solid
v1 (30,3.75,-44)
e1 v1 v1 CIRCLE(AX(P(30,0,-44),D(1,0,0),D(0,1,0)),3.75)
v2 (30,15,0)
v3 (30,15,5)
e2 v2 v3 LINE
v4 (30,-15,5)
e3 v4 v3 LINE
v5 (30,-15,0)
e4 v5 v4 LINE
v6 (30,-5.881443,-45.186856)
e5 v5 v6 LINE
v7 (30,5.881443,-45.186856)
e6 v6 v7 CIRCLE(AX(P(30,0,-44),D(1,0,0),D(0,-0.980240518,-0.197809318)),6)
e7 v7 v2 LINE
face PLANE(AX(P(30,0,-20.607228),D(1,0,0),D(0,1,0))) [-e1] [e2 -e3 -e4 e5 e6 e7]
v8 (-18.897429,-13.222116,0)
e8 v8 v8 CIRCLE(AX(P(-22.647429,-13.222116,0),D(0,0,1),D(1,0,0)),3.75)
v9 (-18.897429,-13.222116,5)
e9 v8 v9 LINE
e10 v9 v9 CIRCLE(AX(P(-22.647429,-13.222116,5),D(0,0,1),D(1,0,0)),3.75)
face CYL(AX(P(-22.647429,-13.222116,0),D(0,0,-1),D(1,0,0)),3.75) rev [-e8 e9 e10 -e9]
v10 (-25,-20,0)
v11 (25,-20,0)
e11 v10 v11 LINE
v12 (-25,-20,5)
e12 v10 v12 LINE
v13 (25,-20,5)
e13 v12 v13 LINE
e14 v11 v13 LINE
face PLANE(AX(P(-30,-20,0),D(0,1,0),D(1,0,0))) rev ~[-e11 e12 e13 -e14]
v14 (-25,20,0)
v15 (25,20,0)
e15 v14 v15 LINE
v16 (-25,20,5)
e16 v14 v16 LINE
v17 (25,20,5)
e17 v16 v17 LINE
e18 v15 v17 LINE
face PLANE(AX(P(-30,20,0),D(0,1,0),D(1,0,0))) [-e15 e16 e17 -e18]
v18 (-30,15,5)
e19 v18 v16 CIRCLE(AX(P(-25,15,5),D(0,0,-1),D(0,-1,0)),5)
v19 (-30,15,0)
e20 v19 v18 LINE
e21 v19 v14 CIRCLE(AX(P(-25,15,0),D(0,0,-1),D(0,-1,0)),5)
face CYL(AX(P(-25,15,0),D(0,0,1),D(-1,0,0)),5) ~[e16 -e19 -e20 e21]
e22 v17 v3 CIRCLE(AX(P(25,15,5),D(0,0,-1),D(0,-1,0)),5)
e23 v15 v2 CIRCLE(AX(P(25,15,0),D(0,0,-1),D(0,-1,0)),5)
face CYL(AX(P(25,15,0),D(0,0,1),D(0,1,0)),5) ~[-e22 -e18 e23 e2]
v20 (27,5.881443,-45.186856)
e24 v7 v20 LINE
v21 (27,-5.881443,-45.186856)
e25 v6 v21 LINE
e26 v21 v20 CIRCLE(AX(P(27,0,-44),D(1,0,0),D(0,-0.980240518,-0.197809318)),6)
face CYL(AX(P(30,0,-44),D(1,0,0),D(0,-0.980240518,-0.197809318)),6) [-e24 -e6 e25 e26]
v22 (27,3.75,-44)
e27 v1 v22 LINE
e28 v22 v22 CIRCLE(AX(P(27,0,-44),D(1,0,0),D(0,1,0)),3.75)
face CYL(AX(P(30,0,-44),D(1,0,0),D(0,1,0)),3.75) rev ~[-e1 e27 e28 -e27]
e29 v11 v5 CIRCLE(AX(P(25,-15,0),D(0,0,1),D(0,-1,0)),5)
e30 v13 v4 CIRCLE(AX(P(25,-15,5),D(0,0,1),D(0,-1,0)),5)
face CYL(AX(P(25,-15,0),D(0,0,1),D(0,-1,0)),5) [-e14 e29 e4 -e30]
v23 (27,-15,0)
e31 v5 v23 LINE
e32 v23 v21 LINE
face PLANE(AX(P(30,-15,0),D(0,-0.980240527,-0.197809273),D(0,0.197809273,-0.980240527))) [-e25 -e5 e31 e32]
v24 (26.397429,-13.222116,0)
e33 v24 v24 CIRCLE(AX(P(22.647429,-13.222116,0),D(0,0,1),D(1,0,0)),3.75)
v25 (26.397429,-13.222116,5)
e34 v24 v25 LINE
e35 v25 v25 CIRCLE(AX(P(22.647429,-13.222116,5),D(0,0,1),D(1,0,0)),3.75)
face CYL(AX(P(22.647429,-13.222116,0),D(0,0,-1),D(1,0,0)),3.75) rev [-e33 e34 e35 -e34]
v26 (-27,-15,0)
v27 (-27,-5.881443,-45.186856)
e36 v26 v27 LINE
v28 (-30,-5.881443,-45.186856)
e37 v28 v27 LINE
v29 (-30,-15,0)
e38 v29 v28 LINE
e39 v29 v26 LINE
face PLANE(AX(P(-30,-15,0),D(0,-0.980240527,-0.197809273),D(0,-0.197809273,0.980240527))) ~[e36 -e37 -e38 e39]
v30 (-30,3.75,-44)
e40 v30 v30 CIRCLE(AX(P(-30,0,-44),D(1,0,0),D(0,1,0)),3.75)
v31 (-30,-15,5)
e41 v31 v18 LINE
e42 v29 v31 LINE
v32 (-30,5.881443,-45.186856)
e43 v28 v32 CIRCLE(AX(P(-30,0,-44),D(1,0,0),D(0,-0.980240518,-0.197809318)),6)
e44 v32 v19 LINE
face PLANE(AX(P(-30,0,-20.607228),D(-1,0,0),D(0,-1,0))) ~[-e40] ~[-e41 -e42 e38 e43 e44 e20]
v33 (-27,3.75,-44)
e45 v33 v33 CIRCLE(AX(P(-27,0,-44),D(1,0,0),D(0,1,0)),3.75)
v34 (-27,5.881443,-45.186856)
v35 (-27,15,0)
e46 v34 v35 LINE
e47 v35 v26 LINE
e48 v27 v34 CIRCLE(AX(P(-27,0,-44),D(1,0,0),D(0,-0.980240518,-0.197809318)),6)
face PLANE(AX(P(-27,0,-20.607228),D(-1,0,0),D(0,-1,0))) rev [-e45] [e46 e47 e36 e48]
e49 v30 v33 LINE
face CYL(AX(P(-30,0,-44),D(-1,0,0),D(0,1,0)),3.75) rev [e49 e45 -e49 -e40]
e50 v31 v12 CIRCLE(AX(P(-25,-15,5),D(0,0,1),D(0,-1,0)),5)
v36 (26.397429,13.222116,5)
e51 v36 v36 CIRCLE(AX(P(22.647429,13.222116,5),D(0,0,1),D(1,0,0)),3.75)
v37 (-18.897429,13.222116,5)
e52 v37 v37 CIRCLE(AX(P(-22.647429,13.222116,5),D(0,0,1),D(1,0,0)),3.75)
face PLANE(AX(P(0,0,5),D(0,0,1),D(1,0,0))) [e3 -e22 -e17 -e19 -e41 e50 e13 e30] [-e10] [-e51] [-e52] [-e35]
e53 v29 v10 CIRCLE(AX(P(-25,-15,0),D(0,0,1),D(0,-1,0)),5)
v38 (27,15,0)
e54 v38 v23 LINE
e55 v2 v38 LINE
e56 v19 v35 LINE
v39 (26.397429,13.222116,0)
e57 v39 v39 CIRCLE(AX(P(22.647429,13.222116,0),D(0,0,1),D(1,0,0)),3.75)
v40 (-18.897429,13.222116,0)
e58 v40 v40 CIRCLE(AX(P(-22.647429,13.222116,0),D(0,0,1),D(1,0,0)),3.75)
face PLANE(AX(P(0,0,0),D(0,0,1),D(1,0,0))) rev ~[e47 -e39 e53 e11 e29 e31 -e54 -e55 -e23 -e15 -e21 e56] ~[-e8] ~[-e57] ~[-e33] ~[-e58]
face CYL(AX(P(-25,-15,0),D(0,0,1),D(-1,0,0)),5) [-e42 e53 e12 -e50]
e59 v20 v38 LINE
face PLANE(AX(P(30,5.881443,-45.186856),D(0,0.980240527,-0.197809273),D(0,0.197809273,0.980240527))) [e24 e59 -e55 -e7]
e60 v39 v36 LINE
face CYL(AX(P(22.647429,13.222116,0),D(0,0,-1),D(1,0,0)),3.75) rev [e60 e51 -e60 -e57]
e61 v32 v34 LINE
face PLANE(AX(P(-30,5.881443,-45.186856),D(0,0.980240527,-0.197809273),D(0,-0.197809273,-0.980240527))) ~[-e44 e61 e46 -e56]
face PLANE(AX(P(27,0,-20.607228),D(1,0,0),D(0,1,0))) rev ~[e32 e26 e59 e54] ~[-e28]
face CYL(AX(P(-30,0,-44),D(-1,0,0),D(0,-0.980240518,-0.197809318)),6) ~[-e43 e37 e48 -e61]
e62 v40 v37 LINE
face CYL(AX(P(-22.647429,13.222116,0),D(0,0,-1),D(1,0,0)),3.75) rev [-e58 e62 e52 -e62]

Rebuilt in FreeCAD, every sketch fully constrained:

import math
import FreeCAD as App
import Part
import Sketcher
Q = App.Units.Quantity


def edges_at(feature, points):
    """Names of the edges that pass closest to the given points."""
    edges = feature.Shape.Edges
    near = lambda p: min(range(len(edges)), key=lambda i: edges[i].distToShape(Part.Vertex(*p))[0])
    return sorted({f"Edge{near(p) + 1}" for p in points})


def add_polygon(sketch, points):
    """Adds a closed chain of lines whose ends are joined by coincident constraints."""
    first, n = sketch.GeometryCount, len(points)
    for a, b in zip(points, points[1:] + points[:1]):
        sketch.addGeometry(Part.LineSegment(App.Vector(*a, 0), App.Vector(*b, 0)), False)
    for i in range(n):
        sketch.addConstraint(Sketcher.Constraint("Coincident", first + i, 2, first + (i + 1) % n, 1))

doc = App.newDocument("Part")
body = doc.addObject("PartDesign::Body", "Body")

# Sketch on XY plane
sketch1 = doc.addObject("Sketcher::SketchObject", "Sketch")
body.addObject(sketch1)
sketch1.AttachmentSupport = (doc.XY_Plane, [""])
sketch1.MapMode = "FlatFace"
add_polygon(sketch1, [(-30, 20), (-30, -20), (30, -20), (30, 20)])  # lines 0-3
sketch1.addGeometry(Part.Circle(App.Vector(-22.6, -13.2, 0), App.Vector(0, 0, 1), 3.8), False)  # 4
sketch1.addGeometry(Part.Circle(App.Vector(22.6, -13.2, 0), App.Vector(0, 0, 1), 3.8), False)  # 5
sketch1.addGeometry(Part.Circle(App.Vector(-22.6, 13.2, 0), App.Vector(0, 0, 1), 3.8), False)  # 6
sketch1.addGeometry(Part.Circle(App.Vector(22.6, 13.2, 0), App.Vector(0, 0, 1), 3.8), False)  # 7
sketch1.addConstraint([
    Sketcher.Constraint("Vertical", 0),
    Sketcher.Constraint("Horizontal", 1),
    Sketcher.Constraint("Vertical", 2),
    Sketcher.Constraint("Horizontal", 3),
    Sketcher.Constraint("Equal", 4, 5),
    Sketcher.Constraint("Equal", 5, 6),
    Sketcher.Constraint("Equal", 6, 7),
    Sketcher.Constraint("Symmetric", 5, 3, 6, 3, -1, 1),
    Sketcher.Constraint("Symmetric", 4, 3, 7, 3, -1, 1),
    Sketcher.Constraint("Symmetric", 0, 2, 2, 2, -1, 1),
    Sketcher.Constraint("Symmetric", 4, 3, 5, 3, -2),
    Sketcher.Constraint("Diameter", 4, Q("7.5 mm")),
    Sketcher.Constraint("DistanceX", 1, 1, 1, 2, Q("60 mm")),
    Sketcher.Constraint("DistanceY", 0, 2, 0, 1, Q("40 mm")),
    Sketcher.Constraint("DistanceX", 4, 3, -1, 1, Q("22.647429 mm")),
    Sketcher.Constraint("DistanceY", 4, 3, 6, 3, Q("26.444232 mm")),
])
pad1 = doc.addObject("PartDesign::Pad", "Pad")
body.addObject(pad1)
pad1.Profile = sketch1
pad1.Length = 5
doc.recompute()

fillet = doc.addObject("PartDesign::Fillet", "Fillet")
body.addObject(fillet)
fillet.Base = (pad1, edges_at(pad1, [
    (-30, -20, 2.5),
    (30, -20, 2.5),
    (30, 20, 2.5),
    (-30, 20, 2.5),
]))
fillet.Radius = 5

# Sketch on YZ plane
sketch2 = doc.addObject("Sketcher::SketchObject", "Sketch001")
body.addObject(sketch2)
sketch2.AttachmentSupport = (doc.YZ_Plane, [""])
sketch2.MapMode = "FlatFace"
sketch2.AttachmentOffset = App.Placement(App.Vector(0, 0, 30), App.Rotation())
sketch2.addGeometry([
    Part.LineSegment(App.Vector(15, 0, 0), App.Vector(-15, 0, 0)),  # 0
    Part.LineSegment(App.Vector(-15, 0, 0), App.Vector(-5.9, -45.2, 0)),  # 1
    Part.ArcOfCircle(Part.Circle(App.Vector(0, -44, 0), App.Vector(0, 0, 1), 6), math.radians(-169), math.radians(-11)),  # 2
    Part.LineSegment(App.Vector(5.9, -45.2, 0), App.Vector(15, 0, 0)),  # 3
    Part.Circle(App.Vector(0, -44, 0), App.Vector(0, 0, 1), 3.8),  # 4
], False)
sketch2.addConstraint([
    Sketcher.Constraint("Coincident", 0, 2, 1, 1),
    Sketcher.Constraint("Tangent", 1, 2, 2, 1),
    Sketcher.Constraint("Tangent", 2, 2, 3, 1),
    Sketcher.Constraint("Coincident", 3, 2, 0, 1),
    Sketcher.Constraint("Horizontal", 0),
    Sketcher.Constraint("Coincident", 4, 3, 2, 3),
    Sketcher.Constraint("Symmetric", 0, 2, 3, 2, -1, 1),
    Sketcher.Constraint("PointOnObject", 2, 3, -2),
    Sketcher.Constraint("Radius", 2, Q("6 mm")),
    Sketcher.Constraint("Diameter", 4, Q("7.5 mm")),
    Sketcher.Constraint("DistanceX", 0, 2, 0, 1, Q("30 mm")),
    Sketcher.Constraint("DistanceY", 2, 3, -1, 1, Q("44 mm")),
])
pad2 = doc.addObject("PartDesign::Pad", "Pad001")
body.addObject(pad2)
pad2.Profile = sketch2
pad2.Length = 3
pad2.Reversed = True
body2 = doc.addObject("PartDesign::Body", "Body001")
doc.recompute()

body2.BaseFeature = body
doc.recompute()

mirroring = doc.addObject("Part::Mirroring", "Mirroring")
mirroring.Source = body
mirroring.Base = App.Vector(0, 0, 0)
mirroring.Normal = App.Vector(1, 0, 0)
body3 = doc.addObject("PartDesign::Body", "Body002")
body3.BaseFeature = mirroring
boolean = doc.addObject("PartDesign::Boolean", "Boolean")
body2.addObject(boolean)
boolean.Type = "Fuse"
boolean.addObjects([body3])
doc.recompute()
mirroring.Visibility = False

doc.recompute()
